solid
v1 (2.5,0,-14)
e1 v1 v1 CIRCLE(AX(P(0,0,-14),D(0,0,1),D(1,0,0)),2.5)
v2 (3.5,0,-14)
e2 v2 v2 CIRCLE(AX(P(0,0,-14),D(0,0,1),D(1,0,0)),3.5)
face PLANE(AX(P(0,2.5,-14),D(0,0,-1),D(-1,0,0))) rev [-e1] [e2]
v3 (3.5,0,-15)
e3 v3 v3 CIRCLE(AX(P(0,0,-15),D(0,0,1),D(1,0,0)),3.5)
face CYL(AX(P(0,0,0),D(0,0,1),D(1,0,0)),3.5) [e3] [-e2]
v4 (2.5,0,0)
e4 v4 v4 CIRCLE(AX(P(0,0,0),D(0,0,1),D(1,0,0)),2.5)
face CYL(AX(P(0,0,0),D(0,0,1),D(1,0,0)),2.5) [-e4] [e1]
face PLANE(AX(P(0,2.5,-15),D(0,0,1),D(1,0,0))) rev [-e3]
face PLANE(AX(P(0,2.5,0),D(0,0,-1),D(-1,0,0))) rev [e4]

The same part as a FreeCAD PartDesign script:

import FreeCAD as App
import Part
import Sketcher
from FreeCAD import Vector
Q = App.Units.Quantity


def add_polygon(sketch, points):
    """Adds a closed chain of lines whose ends are joined by coincident constraints."""
    first, n = sketch.GeometryCount, len(points)
    for a, b in zip(points, points[1:] + points[:1]):
        sketch.addGeometry(Part.LineSegment(App.Vector(*a, 0), App.Vector(*b, 0)), False)
    for i in range(n):
        sketch.addConstraint(Sketcher.Constraint("Coincident", first + i, 2, first + (i + 1) % n, 1))

doc = App.newDocument("Part")
params = doc.addObject("Spreadsheet::Sheet", "Params")
for row, (alias, value) in enumerate([
    ("sketch1_width", "1 mm"),
    ("sketch1_height", "15 mm"),
    ("sketch1_width2", "2.5 mm"),
    ("revolution_angle", "360 deg"),
], start=1):
    params.set(f"A{row}", alias)
    params.set(f"B{row}", "=" + value)
    params.setAlias(f"B{row}", alias)

body = doc.addObject("PartDesign::Body", "Body")

sketch1 = doc.addObject("Sketcher::SketchObject", "Sketch")
body.addObject(sketch1)
sketch1.AttachmentSupport = (doc.YZ_Plane, [""])
sketch1.MapMode = "FlatFace"
add_polygon(sketch1, [(2.5, 0), (0, 0), (0, -15), (3.5, -15), (3.5, -14), (2.5, -14)])
sketch1.addConstraint(Sketcher.Constraint("Horizontal", 0))
sketch1.addConstraint(Sketcher.Constraint("Vertical", 1))
sketch1.addConstraint(Sketcher.Constraint("Horizontal", 2))
sketch1.addConstraint(Sketcher.Constraint("Vertical", 3))
sketch1.addConstraint(Sketcher.Constraint("Horizontal", 4))
sketch1.addConstraint(Sketcher.Constraint("Vertical", 5))
sketch1.addConstraint(Sketcher.Constraint("Coincident", 0, 2, -1, 1))
sketch1.addConstraint(Sketcher.Constraint("Equal", 4, 3))
sketch1.addConstraint(Sketcher.Constraint("DistanceX", 4, 2, 4, 1, Q("1 mm")))
sketch1.addConstraint(Sketcher.Constraint("DistanceY", 1, 2, 1, 1, Q("15 mm")))
sketch1.addConstraint(Sketcher.Constraint("DistanceX", 0, 2, 0, 1, Q("2.5 mm")))
sketch1.setExpression("Constraints[14]", "Params.sketch1_width")
sketch1.setExpression("Constraints[15]", "Params.sketch1_height")
sketch1.setExpression("Constraints[16]", "Params.sketch1_width2")
revolution = doc.addObject("PartDesign::Revolution", "Revolution")
body.addObject(revolution)
revolution.Profile = sketch1
revolution.ReferenceAxis = (sketch1, ["V_Axis"])
revolution.setExpression("Angle", "Params.revolution_angle")

doc.recompute()
